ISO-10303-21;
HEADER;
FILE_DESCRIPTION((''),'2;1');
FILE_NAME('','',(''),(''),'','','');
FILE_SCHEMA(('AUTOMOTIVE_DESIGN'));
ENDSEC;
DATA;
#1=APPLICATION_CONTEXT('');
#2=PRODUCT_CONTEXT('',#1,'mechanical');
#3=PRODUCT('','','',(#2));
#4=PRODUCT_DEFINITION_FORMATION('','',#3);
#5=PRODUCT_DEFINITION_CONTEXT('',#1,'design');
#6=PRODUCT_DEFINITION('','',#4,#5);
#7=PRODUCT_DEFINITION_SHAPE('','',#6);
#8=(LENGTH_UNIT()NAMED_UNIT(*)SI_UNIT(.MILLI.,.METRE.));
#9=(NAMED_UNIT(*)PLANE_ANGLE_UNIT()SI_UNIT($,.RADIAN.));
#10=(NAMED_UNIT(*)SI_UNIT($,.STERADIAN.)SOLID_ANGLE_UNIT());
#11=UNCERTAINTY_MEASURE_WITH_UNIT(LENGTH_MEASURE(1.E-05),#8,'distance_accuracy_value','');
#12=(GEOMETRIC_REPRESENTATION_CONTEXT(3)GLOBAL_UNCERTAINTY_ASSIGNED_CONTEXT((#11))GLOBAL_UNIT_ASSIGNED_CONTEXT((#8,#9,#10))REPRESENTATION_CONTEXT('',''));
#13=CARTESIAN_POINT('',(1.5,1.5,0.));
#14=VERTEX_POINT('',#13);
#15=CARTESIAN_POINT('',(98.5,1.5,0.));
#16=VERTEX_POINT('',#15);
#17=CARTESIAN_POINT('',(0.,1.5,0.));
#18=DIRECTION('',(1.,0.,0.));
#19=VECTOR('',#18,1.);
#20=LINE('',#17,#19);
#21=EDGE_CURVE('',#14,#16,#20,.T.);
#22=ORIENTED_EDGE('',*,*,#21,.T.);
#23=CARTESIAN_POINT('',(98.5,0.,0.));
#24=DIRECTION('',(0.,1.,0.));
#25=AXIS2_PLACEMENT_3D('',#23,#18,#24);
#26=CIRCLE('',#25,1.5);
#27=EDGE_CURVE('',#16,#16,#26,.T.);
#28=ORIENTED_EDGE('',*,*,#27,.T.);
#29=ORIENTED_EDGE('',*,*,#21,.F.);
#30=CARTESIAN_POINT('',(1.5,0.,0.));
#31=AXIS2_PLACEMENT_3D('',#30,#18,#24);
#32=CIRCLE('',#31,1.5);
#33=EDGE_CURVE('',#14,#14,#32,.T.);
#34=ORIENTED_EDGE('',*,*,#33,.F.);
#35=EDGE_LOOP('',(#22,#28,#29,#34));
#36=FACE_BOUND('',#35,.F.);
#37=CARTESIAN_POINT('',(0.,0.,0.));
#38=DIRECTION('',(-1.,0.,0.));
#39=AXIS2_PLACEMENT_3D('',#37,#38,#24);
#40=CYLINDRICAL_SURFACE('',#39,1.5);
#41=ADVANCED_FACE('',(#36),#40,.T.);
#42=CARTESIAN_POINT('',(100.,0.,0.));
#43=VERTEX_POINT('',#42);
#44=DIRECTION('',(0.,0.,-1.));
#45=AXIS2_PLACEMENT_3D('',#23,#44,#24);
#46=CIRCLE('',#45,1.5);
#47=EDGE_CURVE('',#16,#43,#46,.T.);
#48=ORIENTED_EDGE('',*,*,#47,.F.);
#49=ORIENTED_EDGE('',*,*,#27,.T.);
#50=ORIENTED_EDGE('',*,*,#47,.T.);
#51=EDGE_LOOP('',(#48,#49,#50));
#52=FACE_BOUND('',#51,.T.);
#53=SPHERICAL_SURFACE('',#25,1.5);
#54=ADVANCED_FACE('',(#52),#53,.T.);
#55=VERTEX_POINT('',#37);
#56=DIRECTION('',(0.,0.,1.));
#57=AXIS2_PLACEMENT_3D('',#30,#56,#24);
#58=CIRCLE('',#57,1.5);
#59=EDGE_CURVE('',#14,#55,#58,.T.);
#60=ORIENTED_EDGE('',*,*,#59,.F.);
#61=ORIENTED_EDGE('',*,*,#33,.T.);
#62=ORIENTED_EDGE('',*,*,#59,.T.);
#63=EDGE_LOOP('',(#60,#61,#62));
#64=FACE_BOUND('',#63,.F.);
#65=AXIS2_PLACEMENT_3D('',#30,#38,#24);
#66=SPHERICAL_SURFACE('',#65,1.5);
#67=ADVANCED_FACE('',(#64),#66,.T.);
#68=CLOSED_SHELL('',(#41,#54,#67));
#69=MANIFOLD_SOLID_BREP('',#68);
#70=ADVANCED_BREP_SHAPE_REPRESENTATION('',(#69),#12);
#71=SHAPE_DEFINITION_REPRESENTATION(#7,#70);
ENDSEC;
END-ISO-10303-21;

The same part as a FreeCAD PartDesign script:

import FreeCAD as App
import Part
import Sketcher
Q = App.Units.Quantity


def edges_at(feature, points):
    """Names of the edges that pass closest to the given points."""
    edges = feature.Shape.Edges
    near = lambda p: min(range(len(edges)), key=lambda i: edges[i].distToShape(Part.Vertex(*p))[0])
    return sorted({f"Edge{near(p) + 1}" for p in points})

doc = App.newDocument("Part")
body = doc.addObject("PartDesign::Body", "Body")

sketch1 = doc.addObject("Sketcher::SketchObject", "Sketch")
body.addObject(sketch1)
sketch1.AttachmentSupport = (doc.YZ_Plane, [""])
sketch1.MapMode = "FlatFace"
sketch1.addGeometry(Part.Circle(App.Vector(0, 0, 0), App.Vector(0, 0, 1), 1.5), False)
sketch1.addConstraint([
    Sketcher.Constraint("Coincident", 0, 3, -1, 1),
    Sketcher.Constraint("Diameter", 0, Q("3 mm")),
])
pad1 = doc.addObject("PartDesign::Pad", "Pad")
body.addObject(pad1)
pad1.Profile = sketch1
pad1.Length = 100
doc.recompute()

fillet = doc.addObject("PartDesign::Fillet", "Fillet")
body.addObject(fillet)
fillet.Base = (pad1, edges_at(pad1, [(0, -1.5, 0), (100, -1.5, 0)]))
fillet.Radius = 1.5

doc.recompute()
